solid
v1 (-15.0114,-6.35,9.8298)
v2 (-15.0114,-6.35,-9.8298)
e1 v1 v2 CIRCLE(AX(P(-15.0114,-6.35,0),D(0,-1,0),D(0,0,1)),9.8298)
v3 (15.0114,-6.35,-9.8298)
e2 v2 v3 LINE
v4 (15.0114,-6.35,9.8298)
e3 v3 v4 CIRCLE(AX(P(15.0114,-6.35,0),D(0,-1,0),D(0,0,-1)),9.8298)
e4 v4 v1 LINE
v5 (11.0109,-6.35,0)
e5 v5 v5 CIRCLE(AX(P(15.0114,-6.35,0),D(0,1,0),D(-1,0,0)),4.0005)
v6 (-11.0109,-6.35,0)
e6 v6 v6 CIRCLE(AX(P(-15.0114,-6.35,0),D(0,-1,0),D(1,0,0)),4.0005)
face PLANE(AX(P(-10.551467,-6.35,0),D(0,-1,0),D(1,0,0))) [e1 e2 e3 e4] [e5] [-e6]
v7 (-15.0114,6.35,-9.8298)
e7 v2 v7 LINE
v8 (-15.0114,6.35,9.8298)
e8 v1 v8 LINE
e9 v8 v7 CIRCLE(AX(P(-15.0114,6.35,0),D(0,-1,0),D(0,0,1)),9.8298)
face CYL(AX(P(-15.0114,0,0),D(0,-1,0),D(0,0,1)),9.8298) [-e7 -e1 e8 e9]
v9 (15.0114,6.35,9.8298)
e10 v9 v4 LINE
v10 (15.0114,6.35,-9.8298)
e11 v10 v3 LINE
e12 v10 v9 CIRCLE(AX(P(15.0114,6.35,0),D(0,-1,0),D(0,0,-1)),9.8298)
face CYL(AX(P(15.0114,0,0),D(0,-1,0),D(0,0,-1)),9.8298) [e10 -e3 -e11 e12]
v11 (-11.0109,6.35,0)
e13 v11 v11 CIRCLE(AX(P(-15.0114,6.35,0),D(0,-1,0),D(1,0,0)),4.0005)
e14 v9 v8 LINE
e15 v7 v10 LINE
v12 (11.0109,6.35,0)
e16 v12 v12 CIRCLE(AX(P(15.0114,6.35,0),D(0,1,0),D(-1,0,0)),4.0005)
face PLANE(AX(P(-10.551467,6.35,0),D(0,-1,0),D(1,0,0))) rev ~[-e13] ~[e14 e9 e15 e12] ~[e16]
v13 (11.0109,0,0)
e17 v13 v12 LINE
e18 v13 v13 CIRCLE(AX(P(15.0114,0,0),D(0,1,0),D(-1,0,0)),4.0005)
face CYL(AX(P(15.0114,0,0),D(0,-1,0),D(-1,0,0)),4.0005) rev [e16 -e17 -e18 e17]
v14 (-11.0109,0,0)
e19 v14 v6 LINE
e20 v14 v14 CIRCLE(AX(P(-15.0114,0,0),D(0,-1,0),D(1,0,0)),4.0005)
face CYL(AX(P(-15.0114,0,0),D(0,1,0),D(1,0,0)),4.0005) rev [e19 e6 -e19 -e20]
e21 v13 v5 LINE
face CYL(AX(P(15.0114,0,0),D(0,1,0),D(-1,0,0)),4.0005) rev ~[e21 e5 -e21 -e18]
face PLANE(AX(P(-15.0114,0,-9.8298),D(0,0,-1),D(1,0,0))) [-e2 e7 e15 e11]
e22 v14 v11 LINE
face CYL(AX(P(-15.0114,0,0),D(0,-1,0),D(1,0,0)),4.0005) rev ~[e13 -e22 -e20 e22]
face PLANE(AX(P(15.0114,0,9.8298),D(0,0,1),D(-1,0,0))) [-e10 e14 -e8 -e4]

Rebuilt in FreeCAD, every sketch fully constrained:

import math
import FreeCAD as App
import Part
import Sketcher

V = App.Vector
Q = App.Units.Quantity

doc = App.newDocument("Part")
body = doc.addObject("PartDesign::Body", "Body")

# Sketch on XZ plane
sketch1 = body.newObject("Sketcher::SketchObject", "Sketch")
sketch1.AttachmentSupport = (doc.getObject("XZ_Plane"), [""])
sketch1.MapMode = "FlatFace"
sketch1.addGeometry([
    Part.LineSegment(V(-15, -9.8, 0), V(15, -9.8, 0)),  # 0
    Part.ArcOfCircle(Part.Circle(V(15, 0, 0), V(0, 0, 1), 9.8), math.radians(-90), math.radians(90)),  # 1
    Part.LineSegment(V(15, 9.8, 0), V(-15, 9.8, 0)),  # 2
    Part.ArcOfCircle(Part.Circle(V(-15, 0, 0), V(0, 0, 1), 9.8), math.radians(90), math.radians(270)),  # 3
    Part.Circle(V(-15, 0, 0), V(0, 0, 1), 4),  # 4
    Part.Circle(V(15, 0, 0), V(0, 0, 1), 4),  # 5
], False)
sketch1.addConstraint([
    Sketcher.Constraint("Tangent", 0, 2, 1, 1),
    Sketcher.Constraint("Tangent", 1, 2, 2, 1),
    Sketcher.Constraint("Tangent", 2, 2, 3, 1),
    Sketcher.Constraint("Tangent", 3, 2, 0, 1),
    Sketcher.Constraint("Horizontal", 0),
    Sketcher.Constraint("Horizontal", 2),
    Sketcher.Constraint("Coincident", 4, 3, 3, 3),
    Sketcher.Constraint("Coincident", 5, 3, 1, 3),
    Sketcher.Constraint("Equal", 4, 5),
    Sketcher.Constraint("Symmetric", 1, 3, 3, 3, -1, 1),
    Sketcher.Constraint("Diameter", 4, Q("0.315 in")),
    Sketcher.Constraint("Radius", 1, Q("0.387 in")),
    Sketcher.Constraint("DistanceX", 0, 1, 0, 2, Q("1.182 in")),
])
pad1 = body.newObject("PartDesign::Pad", "Pad")
pad1.Profile = sketch1
pad1.Length = Q("0.5 in")
pad1.Midplane = True

doc.recompute()
